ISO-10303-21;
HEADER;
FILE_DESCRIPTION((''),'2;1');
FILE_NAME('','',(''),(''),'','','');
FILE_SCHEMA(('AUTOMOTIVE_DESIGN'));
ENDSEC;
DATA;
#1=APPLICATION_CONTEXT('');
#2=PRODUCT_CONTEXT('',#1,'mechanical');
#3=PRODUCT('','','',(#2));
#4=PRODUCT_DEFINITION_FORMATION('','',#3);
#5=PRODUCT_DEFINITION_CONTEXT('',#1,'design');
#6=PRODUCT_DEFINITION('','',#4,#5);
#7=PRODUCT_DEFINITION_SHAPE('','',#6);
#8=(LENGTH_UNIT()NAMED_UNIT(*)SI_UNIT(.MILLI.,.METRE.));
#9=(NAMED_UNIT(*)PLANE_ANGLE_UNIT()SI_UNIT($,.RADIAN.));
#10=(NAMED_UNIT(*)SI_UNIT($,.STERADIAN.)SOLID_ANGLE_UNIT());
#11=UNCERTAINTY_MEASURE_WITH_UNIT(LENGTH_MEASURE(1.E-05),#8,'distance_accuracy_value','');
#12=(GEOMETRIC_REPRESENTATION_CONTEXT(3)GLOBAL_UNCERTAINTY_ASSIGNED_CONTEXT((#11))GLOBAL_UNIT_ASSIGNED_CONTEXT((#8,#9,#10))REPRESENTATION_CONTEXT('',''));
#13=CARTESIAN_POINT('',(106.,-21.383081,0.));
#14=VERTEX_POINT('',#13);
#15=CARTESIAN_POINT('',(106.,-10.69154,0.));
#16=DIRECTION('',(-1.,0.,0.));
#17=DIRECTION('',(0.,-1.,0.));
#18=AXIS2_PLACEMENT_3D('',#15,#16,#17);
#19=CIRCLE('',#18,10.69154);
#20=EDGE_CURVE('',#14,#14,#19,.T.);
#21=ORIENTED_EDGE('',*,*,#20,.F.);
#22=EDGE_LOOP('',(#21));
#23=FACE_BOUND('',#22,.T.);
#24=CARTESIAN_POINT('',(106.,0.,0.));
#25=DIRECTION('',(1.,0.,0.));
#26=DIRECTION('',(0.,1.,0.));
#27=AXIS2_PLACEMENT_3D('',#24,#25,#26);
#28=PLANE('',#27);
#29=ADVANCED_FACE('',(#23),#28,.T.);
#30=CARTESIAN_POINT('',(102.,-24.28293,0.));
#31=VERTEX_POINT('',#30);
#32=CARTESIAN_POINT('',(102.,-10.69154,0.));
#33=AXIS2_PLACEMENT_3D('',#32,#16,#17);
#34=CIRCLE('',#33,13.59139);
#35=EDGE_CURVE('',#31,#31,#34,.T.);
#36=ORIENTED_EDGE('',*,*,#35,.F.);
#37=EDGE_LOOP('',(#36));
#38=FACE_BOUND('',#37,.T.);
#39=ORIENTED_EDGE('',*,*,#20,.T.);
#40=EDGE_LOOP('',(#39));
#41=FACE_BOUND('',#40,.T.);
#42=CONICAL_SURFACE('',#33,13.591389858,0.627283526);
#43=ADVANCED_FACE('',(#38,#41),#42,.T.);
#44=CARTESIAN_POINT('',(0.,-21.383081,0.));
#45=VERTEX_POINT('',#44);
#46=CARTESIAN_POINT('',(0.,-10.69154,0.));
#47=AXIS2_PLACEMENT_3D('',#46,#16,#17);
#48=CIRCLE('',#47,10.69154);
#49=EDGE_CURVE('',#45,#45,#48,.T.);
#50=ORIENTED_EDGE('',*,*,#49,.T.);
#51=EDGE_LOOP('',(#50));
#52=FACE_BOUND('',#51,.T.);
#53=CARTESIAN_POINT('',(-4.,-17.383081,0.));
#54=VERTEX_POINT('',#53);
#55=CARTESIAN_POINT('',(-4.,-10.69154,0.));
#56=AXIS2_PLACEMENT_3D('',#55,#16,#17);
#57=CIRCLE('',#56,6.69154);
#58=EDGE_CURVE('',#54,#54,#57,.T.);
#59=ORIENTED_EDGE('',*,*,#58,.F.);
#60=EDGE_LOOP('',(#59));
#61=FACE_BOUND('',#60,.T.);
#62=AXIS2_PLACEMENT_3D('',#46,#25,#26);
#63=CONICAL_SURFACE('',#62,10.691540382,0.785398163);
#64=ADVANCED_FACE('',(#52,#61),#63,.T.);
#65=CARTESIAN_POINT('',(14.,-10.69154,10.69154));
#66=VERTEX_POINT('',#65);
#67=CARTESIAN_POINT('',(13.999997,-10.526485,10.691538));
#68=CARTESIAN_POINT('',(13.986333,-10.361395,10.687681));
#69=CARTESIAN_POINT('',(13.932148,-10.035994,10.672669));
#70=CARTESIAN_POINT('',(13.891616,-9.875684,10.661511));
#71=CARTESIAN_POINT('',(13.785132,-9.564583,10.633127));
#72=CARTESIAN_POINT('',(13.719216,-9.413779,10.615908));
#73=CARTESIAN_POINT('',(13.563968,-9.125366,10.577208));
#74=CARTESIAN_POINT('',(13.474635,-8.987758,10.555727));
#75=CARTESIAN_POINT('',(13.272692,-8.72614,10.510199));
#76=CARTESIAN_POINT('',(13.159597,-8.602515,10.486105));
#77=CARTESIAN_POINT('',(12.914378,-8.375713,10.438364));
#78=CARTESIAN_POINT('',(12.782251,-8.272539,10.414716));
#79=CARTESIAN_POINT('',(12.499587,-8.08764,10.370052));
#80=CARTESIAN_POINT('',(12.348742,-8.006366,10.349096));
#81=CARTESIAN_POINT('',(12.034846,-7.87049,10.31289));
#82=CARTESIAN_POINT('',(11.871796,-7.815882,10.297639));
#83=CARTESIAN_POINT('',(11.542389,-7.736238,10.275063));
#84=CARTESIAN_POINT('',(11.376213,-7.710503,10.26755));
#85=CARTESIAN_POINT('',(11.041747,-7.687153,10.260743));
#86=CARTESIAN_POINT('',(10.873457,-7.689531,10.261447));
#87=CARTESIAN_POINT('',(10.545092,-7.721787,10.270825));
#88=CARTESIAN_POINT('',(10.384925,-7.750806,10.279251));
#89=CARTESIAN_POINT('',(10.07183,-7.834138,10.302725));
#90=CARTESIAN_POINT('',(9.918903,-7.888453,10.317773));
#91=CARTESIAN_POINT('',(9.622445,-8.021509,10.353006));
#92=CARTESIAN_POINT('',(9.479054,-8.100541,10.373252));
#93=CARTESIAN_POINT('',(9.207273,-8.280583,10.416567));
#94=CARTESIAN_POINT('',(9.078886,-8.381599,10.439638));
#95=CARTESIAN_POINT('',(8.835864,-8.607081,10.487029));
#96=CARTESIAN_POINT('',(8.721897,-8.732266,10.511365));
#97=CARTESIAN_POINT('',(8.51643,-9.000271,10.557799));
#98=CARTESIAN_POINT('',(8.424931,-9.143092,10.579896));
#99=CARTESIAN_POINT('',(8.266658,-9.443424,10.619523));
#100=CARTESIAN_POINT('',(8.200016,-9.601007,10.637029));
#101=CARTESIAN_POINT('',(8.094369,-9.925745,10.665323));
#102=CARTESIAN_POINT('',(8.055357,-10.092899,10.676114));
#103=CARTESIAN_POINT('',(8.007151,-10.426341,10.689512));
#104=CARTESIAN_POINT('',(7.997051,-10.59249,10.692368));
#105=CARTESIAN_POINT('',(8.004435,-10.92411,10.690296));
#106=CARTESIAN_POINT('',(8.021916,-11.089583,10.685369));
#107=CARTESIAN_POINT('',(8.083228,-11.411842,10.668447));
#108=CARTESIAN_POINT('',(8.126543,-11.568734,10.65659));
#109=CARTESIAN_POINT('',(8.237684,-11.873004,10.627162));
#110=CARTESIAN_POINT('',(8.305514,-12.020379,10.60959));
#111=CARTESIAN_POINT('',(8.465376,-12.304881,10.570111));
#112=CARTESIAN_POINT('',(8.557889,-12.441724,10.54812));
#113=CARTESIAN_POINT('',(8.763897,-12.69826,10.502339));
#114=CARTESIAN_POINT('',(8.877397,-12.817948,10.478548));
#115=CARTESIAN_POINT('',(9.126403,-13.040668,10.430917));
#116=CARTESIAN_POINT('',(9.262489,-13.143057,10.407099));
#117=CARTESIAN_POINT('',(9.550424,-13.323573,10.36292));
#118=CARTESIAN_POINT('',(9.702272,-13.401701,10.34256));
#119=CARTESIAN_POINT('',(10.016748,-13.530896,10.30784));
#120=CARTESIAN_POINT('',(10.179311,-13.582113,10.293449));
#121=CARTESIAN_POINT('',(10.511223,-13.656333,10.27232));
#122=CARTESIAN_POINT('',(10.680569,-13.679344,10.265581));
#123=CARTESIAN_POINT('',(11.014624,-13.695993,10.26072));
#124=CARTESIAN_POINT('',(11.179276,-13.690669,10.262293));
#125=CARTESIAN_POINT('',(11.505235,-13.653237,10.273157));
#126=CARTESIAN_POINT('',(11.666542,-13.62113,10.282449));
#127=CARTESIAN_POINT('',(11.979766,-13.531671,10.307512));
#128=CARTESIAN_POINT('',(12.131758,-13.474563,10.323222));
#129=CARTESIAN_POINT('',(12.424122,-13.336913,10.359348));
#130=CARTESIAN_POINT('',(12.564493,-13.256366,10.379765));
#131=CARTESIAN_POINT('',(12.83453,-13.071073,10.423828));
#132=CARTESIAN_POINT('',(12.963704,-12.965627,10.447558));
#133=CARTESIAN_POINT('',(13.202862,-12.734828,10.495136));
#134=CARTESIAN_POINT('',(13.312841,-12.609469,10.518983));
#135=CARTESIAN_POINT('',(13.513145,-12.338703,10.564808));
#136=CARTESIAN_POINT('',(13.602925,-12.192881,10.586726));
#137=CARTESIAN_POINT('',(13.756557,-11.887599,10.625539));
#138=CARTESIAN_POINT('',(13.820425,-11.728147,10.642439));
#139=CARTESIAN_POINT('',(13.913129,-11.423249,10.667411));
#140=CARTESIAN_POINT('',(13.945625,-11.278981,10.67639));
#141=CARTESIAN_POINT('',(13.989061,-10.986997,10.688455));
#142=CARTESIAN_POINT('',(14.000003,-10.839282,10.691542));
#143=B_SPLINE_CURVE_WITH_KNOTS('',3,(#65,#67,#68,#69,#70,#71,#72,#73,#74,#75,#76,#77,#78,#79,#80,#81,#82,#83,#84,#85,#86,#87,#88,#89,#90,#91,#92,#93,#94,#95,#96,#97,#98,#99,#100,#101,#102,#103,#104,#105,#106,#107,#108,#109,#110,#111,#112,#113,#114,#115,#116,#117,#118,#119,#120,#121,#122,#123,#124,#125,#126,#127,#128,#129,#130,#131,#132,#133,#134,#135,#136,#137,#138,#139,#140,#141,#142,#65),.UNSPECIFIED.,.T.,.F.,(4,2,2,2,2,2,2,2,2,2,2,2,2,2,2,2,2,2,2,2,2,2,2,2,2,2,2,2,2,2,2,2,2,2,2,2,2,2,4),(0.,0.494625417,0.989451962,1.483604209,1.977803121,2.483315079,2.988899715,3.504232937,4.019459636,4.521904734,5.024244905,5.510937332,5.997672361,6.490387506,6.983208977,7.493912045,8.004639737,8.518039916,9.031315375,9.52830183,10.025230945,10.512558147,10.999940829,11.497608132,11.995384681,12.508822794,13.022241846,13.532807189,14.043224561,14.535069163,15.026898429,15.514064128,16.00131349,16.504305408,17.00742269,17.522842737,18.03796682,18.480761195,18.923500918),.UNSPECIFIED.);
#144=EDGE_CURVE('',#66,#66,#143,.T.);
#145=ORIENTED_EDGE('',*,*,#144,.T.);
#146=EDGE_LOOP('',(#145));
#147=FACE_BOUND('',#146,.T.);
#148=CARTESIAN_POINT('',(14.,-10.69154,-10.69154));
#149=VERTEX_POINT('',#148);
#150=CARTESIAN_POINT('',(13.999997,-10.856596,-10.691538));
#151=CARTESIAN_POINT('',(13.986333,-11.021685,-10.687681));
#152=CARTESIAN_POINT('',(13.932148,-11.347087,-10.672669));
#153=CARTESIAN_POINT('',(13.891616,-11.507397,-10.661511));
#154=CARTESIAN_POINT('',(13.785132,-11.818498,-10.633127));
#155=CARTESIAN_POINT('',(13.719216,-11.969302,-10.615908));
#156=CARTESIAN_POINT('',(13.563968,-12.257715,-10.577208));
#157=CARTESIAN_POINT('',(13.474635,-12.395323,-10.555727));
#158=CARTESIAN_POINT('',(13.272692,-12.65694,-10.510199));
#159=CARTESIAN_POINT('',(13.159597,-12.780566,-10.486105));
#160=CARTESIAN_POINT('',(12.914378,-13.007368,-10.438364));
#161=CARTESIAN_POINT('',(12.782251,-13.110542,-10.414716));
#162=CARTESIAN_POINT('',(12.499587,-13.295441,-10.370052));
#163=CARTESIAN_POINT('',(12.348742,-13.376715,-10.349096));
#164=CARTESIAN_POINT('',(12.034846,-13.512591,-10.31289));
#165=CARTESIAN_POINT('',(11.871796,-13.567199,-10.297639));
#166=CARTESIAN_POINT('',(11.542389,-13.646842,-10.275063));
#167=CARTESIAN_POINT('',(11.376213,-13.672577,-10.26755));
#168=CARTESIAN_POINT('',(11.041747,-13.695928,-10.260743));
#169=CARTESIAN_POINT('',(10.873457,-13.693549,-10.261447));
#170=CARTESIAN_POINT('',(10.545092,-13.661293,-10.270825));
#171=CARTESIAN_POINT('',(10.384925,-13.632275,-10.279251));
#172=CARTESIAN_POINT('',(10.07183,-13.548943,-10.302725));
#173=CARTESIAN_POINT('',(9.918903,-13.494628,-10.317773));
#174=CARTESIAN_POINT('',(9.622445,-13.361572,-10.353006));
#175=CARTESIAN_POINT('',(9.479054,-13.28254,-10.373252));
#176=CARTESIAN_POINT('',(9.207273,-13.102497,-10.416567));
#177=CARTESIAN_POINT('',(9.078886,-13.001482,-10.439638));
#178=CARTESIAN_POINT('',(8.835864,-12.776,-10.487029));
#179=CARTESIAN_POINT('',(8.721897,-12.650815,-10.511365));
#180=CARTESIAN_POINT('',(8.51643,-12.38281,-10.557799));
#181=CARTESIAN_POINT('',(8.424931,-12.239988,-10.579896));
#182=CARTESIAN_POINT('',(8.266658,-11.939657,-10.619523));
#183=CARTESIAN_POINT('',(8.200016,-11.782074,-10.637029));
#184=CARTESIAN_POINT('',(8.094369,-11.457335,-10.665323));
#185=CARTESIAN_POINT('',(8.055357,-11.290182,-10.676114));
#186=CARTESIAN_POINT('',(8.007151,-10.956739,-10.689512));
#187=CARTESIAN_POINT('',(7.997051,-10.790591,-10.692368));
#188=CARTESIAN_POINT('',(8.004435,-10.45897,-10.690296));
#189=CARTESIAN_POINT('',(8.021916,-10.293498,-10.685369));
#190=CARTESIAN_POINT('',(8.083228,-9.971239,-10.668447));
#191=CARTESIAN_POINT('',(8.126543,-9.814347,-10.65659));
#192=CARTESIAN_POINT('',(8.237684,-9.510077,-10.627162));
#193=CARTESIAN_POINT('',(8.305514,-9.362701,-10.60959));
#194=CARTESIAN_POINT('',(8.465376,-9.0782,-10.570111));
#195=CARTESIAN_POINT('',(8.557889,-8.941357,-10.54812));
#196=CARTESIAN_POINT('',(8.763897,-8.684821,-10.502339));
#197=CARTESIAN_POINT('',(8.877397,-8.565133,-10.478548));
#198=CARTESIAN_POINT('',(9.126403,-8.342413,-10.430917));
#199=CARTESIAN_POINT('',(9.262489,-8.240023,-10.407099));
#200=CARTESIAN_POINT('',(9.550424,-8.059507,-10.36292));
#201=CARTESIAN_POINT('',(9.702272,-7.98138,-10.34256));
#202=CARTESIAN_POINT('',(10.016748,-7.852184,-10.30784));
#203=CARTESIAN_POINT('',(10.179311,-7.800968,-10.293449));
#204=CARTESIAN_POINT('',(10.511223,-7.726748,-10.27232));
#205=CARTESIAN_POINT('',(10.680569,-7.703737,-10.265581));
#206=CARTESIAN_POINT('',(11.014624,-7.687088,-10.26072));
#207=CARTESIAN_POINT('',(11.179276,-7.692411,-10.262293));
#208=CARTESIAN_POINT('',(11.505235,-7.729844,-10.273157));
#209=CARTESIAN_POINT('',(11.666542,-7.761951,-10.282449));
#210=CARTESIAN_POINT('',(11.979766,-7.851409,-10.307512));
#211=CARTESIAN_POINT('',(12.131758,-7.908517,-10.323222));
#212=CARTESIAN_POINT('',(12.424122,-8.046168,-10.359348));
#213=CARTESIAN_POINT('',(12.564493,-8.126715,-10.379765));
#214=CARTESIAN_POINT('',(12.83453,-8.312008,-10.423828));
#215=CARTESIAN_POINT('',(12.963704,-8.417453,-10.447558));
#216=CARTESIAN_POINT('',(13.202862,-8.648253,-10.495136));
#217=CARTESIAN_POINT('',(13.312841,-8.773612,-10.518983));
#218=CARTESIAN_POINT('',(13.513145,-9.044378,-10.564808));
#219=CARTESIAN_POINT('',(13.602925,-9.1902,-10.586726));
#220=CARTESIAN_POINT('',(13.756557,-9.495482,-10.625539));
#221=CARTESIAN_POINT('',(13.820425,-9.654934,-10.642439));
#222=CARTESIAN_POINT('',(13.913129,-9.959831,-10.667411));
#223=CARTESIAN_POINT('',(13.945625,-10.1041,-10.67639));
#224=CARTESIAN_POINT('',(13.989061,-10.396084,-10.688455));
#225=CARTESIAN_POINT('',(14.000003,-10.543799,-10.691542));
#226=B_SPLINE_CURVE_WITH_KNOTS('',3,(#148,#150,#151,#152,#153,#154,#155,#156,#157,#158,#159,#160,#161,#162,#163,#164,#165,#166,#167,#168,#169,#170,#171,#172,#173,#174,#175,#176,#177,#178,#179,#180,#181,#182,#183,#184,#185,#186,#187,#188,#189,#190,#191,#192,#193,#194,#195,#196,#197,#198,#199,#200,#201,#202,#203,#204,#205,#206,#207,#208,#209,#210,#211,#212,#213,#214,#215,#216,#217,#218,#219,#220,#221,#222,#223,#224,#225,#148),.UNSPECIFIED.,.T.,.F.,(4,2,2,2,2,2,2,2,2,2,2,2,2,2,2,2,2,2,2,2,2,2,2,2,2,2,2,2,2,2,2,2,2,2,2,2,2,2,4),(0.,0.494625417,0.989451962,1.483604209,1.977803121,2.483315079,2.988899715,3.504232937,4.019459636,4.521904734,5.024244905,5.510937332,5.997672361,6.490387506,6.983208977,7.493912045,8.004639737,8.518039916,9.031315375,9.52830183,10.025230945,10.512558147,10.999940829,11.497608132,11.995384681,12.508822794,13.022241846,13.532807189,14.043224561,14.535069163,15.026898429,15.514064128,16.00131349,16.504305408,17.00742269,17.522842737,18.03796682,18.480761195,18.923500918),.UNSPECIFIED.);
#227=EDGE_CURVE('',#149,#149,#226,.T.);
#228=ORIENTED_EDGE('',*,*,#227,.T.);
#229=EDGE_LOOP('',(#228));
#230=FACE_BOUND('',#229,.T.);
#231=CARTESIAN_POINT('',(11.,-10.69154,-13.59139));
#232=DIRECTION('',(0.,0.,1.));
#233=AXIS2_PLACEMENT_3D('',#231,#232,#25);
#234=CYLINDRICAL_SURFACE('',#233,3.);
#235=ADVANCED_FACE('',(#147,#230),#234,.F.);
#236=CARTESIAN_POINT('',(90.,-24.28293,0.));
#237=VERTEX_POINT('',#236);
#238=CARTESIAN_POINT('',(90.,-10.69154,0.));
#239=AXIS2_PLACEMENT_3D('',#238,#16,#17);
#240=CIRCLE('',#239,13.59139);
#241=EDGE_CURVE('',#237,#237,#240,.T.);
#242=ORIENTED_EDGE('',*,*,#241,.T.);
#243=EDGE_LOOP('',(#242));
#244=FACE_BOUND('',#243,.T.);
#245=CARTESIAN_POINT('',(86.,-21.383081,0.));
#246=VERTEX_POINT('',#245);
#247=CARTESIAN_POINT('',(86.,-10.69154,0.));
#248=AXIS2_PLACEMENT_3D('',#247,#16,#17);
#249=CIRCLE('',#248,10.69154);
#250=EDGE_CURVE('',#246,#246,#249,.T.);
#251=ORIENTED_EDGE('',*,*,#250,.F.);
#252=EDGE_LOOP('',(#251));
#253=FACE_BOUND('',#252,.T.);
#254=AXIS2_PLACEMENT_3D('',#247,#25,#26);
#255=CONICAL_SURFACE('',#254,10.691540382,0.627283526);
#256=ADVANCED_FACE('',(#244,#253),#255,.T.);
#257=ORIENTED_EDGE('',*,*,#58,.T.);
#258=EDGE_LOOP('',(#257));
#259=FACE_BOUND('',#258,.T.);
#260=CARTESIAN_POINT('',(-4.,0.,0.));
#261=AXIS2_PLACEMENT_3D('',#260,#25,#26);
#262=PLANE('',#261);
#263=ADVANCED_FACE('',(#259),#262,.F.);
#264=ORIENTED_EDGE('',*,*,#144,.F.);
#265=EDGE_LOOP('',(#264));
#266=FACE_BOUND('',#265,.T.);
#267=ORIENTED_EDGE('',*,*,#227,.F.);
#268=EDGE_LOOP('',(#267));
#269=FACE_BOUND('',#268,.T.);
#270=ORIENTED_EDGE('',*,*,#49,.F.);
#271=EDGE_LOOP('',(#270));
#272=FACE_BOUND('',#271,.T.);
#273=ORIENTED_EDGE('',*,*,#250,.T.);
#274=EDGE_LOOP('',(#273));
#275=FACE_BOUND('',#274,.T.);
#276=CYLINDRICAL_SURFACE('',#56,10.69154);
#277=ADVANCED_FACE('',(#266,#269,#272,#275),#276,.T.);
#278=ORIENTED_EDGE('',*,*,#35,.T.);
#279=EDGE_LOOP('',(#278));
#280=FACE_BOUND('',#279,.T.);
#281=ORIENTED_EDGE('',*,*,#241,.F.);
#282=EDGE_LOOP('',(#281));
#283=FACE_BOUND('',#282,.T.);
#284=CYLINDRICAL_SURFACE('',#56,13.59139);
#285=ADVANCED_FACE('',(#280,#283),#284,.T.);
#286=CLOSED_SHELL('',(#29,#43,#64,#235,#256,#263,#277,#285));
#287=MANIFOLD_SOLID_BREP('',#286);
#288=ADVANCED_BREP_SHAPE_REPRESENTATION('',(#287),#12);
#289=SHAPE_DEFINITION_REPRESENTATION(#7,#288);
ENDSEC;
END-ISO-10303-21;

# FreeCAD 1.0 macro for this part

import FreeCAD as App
import Part
import Sketcher
Q = App.Units.Quantity


def add_polygon(sketch, points):
    """Adds a closed chain of lines whose ends are joined by coincident constraints."""
    first, n = sketch.GeometryCount, len(points)
    for a, b in zip(points, points[1:] + points[:1]):
        sketch.addGeometry(Part.LineSegment(App.Vector(*a, 0), App.Vector(*b, 0)), False)
    for i in range(n):
        sketch.addConstraint(Sketcher.Constraint("Coincident", first + i, 2, first + (i + 1) % n, 1))

doc = App.newDocument("Part")
body = doc.addObject("PartDesign::Body", "Body")

# Sketch on XY plane
sketch1 = body.newObject("Sketcher::SketchObject", "Sketch")
sketch1.AttachmentSupport = (doc.getObject("XY_Plane"), [""])
sketch1.MapMode = "FlatFace"
add_polygon(sketch1, [(86, 0), (0, 0), (-4, -4), (-4, -10.69154), (90, -10.69154), (102, -10.69154), (106, -10.69154), (106, 0), (102, 2.899849), (90, 2.899849)])  # lines 0-9
sketch1.addGeometry(Part.LineSegment(App.Vector(-4, -10.69154, 0), App.Vector(106, -10.69154, 0)), True)  # axis
sketch1.addConstraint([
    Sketcher.Constraint("Horizontal", 0),
    Sketcher.Constraint("Vertical", 2),
    Sketcher.Constraint("Horizontal", 3),
    Sketcher.Constraint("Horizontal", 4),
    Sketcher.Constraint("Horizontal", 5),
    Sketcher.Constraint("Vertical", 6),
    Sketcher.Constraint("Horizontal", 8),
    Sketcher.Constraint("Horizontal", 10),
    Sketcher.Constraint("Coincident", 0, 2, -1, 1),
    Sketcher.Constraint("Coincident", 10, 1, 2, 2),
    Sketcher.Constraint("PointOnObject", 6, 2, -1),
    Sketcher.Constraint("Vertical", 4, 2, 7, 2),
    Sketcher.Constraint("Vertical", 3, 2, 8, 2),
    Sketcher.Constraint("Vertical", 6, 2, 10, 2),
    Sketcher.Constraint("Equal", 7, 9),
    Sketcher.Constraint("DistanceX", 0, 2, 0, 1, Q("86 mm")),
    Sketcher.Constraint("DistanceX", 3, 1, 3, 2, Q("94 mm")),
    Sketcher.Constraint("DistanceX", 4, 1, 4, 2, Q("12 mm")),
    Sketcher.Constraint("DistanceX", 5, 1, 5, 2, Q("4 mm")),
    Sketcher.Constraint("Angle", 1, Q("-135 deg")),
    Sketcher.Constraint("DistanceY", 2, 2, 2, 1, Q("6.69154 mm")),
    Sketcher.Constraint("Distance", 7, Q("4.940559 mm")),
])
revolution = body.newObject("PartDesign::Revolution", "Revolution")
revolution.Profile = sketch1
revolution.ReferenceAxis = (sketch1, ["Axis0"])
revolution.Angle = 360

# Sketch on XY plane
sketch2 = body.newObject("Sketcher::SketchObject", "Sketch001")
sketch2.AttachmentSupport = (doc.getObject("XY_Plane"), [""])
sketch2.MapMode = "FlatFace"
sketch2.addGeometry(Part.Circle(App.Vector(11, -10.69154, 0), App.Vector(0, 0, 1), 3), False)
sketch2.addConstraint([
    Sketcher.Constraint("Diameter", 0, Q("6 mm")),
    Sketcher.Constraint("DistanceX", -1, 1, 0, 3, Q("11 mm")),
    Sketcher.Constraint("DistanceY", 0, 3, -1, 1, Q("10.69154 mm")),
])
pocket1 = body.newObject("PartDesign::Pocket", "Pocket")
pocket1.Profile = sketch2
pocket1.Type = "ThroughAll"
pocket1.Midplane = True

doc.recompute()
